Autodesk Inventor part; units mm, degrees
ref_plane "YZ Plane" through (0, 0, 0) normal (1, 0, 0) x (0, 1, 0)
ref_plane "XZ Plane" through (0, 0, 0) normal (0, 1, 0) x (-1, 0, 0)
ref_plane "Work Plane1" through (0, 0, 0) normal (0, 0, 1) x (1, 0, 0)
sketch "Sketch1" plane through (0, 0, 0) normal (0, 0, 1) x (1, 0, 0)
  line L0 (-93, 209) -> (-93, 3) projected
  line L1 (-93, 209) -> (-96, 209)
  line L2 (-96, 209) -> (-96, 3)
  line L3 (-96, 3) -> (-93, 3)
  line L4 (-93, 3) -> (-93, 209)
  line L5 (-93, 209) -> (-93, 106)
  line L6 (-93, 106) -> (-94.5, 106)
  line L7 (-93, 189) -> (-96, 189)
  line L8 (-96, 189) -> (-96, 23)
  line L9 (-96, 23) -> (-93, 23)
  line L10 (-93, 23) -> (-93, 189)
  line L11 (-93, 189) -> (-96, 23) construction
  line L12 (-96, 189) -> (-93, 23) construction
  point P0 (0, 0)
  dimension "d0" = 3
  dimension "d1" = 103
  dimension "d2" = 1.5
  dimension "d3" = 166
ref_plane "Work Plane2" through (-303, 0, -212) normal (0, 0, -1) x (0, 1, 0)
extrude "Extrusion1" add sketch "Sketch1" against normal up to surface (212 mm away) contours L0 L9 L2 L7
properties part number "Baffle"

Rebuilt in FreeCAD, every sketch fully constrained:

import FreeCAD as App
import Part
import Sketcher
from FreeCAD import Vector
Q = App.Units.Quantity


def add_polygon(sketch, points):
    """Adds a closed chain of lines whose ends are joined by coincident constraints."""
    first, n = sketch.GeometryCount, len(points)
    for a, b in zip(points, points[1:] + points[:1]):
        sketch.addGeometry(Part.LineSegment(App.Vector(*a, 0), App.Vector(*b, 0)), False)
    for i in range(n):
        sketch.addConstraint(Sketcher.Constraint("Coincident", first + i, 2, first + (i + 1) % n, 1))

doc = App.newDocument("Part")
body = doc.addObject("PartDesign::Body", "Body")

# Sketch on XY plane
sketch1 = doc.addObject("Sketcher::SketchObject", "Sketch")
body.addObject(sketch1)
sketch1.AttachmentSupport = (doc.XY_Plane, [""])
sketch1.MapMode = "FlatFace"
add_polygon(sketch1, [(-93, 23), (-93, 189), (-96, 189), (-96, 23)])  # lines 0-3
sketch1.addConstraint([
    Sketcher.Constraint("Vertical", 0),
    Sketcher.Constraint("Horizontal", 1),
    Sketcher.Constraint("Vertical", 2),
    Sketcher.Constraint("Horizontal", 3),
    Sketcher.Constraint("DistanceX", 1, 2, 1, 1, Q("3 mm")),
    Sketcher.Constraint("DistanceY", 0, 1, 0, 2, Q("166 mm")),
    Sketcher.Constraint("DistanceX", 0, 2, -1, 1, Q("93 mm")),
    Sketcher.Constraint("DistanceY", -1, 1, 0, 2, Q("189 mm")),
])
pad1 = doc.addObject("PartDesign::Pad", "Pad")
body.addObject(pad1)
pad1.Profile = sketch1
pad1.Length = 212
pad1.Reversed = True

doc.recompute()
